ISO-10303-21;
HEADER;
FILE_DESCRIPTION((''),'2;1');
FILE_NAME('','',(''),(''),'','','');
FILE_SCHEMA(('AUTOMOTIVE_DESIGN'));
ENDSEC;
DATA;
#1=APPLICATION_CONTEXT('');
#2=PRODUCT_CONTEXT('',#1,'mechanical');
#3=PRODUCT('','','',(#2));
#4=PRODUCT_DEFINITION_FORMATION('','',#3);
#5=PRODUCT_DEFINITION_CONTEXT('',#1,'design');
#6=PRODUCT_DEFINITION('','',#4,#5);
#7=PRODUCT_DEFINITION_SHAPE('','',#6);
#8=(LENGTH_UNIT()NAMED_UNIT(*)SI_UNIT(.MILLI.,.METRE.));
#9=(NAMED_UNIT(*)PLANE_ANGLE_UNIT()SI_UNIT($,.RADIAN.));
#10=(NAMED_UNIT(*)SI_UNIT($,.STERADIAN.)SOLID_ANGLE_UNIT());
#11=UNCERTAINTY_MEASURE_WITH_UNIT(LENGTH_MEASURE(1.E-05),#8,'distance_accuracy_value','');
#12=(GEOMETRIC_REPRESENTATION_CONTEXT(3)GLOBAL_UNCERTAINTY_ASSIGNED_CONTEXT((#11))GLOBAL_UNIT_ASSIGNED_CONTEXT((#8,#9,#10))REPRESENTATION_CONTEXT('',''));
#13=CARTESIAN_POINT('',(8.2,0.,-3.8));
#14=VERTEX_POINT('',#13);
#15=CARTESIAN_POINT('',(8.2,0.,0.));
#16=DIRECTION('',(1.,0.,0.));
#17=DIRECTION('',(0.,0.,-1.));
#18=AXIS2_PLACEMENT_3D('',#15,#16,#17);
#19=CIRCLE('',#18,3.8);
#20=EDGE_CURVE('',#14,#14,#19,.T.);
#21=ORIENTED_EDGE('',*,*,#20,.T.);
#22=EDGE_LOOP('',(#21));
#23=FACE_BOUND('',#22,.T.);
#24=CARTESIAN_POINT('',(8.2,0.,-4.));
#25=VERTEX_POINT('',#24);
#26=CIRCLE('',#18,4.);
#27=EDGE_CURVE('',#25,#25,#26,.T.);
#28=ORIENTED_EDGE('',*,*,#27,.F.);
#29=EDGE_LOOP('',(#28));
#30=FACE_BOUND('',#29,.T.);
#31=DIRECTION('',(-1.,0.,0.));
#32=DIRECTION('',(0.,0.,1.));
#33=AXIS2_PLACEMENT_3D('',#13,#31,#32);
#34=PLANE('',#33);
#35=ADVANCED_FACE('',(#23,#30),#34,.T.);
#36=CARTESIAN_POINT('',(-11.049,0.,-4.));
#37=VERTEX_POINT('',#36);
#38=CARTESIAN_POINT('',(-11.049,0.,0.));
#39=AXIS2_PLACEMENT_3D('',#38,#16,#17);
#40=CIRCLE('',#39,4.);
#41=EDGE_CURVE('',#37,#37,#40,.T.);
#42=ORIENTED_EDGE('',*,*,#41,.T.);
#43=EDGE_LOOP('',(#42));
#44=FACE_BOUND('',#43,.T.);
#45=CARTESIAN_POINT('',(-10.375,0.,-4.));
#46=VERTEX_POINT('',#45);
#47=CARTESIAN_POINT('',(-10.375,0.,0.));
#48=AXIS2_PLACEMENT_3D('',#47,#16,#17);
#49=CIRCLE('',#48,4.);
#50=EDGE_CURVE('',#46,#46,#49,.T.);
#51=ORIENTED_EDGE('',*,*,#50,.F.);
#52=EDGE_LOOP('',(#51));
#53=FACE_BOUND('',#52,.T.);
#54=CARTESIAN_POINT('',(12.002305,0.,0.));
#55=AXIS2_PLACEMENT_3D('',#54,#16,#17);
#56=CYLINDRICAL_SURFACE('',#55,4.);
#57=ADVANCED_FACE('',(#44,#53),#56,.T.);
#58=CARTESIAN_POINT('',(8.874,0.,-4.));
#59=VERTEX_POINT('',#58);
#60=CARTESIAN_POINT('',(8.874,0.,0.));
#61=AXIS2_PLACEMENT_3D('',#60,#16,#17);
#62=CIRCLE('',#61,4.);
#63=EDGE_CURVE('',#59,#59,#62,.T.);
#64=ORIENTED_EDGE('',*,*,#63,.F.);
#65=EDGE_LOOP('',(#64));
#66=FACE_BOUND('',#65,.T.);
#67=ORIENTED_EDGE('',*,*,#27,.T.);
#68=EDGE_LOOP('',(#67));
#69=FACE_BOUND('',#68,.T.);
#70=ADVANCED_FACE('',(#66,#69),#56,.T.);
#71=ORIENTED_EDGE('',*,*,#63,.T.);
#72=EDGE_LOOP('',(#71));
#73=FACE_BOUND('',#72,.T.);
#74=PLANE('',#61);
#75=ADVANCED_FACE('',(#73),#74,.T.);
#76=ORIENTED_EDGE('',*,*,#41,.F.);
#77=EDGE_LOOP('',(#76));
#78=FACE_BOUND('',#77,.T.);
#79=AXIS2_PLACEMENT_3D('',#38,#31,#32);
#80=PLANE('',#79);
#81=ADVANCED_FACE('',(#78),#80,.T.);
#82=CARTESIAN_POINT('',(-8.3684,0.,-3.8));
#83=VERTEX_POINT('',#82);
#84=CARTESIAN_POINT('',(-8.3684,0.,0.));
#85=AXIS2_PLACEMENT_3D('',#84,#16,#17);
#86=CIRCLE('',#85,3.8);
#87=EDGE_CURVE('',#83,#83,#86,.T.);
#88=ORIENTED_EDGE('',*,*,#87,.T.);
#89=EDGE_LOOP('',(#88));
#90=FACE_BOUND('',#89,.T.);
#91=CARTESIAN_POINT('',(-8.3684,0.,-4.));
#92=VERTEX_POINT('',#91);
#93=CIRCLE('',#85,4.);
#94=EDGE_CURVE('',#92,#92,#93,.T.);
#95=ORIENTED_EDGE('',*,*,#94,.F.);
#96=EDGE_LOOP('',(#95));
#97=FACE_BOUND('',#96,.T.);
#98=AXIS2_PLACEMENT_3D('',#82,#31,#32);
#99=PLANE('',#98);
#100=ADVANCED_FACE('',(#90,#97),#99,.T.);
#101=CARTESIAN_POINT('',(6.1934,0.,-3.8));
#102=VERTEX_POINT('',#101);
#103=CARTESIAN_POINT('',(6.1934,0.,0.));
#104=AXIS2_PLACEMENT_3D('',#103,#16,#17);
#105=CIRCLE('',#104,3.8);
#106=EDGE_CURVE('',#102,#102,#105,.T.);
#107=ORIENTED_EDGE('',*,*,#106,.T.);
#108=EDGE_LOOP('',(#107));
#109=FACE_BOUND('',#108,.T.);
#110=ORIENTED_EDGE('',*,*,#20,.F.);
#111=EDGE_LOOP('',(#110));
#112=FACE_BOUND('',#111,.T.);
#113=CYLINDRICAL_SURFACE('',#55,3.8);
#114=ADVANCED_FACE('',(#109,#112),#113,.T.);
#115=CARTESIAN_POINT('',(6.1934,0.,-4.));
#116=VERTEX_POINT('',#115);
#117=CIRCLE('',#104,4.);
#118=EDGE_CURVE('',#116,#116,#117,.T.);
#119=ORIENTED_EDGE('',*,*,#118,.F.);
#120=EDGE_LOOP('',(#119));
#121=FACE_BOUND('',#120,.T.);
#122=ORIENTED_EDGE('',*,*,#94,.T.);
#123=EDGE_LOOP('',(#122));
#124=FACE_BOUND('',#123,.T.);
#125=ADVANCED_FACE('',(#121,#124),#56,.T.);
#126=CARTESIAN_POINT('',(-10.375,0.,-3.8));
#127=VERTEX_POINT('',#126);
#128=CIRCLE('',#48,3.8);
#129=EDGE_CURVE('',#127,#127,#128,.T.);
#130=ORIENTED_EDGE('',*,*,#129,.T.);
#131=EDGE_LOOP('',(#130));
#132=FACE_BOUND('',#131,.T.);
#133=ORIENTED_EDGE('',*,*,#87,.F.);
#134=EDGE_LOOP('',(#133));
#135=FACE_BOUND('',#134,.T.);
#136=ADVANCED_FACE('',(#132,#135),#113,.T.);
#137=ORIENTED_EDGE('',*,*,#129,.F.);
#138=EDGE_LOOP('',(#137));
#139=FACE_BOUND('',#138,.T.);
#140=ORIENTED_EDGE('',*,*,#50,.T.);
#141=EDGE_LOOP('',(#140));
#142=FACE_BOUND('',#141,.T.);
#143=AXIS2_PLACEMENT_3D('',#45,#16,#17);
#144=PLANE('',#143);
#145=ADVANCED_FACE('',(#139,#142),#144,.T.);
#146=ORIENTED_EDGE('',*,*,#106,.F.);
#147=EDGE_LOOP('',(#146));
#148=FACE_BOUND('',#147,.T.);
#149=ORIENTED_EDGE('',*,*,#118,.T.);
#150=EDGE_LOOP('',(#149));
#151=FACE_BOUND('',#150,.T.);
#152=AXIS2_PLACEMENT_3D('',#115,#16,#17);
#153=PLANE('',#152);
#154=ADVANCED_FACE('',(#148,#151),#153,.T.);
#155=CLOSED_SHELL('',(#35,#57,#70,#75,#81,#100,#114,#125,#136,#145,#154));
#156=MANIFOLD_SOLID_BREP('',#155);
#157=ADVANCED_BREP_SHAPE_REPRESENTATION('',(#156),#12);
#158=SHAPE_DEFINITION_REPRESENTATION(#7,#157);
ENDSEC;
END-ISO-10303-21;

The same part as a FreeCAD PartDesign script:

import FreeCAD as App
import Part
import Sketcher

V = App.Vector

doc = App.newDocument("Part")
body = doc.addObject("PartDesign::Body", "Body")

# Sketch on XZ plane
sketch1 = body.newObject("Sketcher::SketchObject", "Sketch")
sketch1.AttachmentSupport = (doc.getObject("XZ_Plane"), [""])
sketch1.MapMode = "FlatFace"
sketch1.addGeometry([
    Part.LineSegment(V(8.87, 0, 0), V(8.87, -4, 0)),  # 0
    Part.LineSegment(V(8.87, -4, 0), V(8.2, -4, 0)),  # 1
    Part.LineSegment(V(8.2, -4, 0), V(8.2, -3.8, 0)),  # 2
    Part.LineSegment(V(8.2, -3.8, 0), V(6.19, -3.8, 0)),  # 3
    Part.LineSegment(V(6.19, -3.8, 0), V(6.19, -4, 0)),  # 4
    Part.LineSegment(V(6.19, -4, 0), V(-8.37, -4, 0)),  # 5
    Part.LineSegment(V(-8.37, -4, 0), V(-8.37, -3.8, 0)),  # 6
    Part.LineSegment(V(-8.37, -3.8, 0), V(-10.38, -3.8, 0)),  # 7
    Part.LineSegment(V(-10.38, -3.8, 0), V(-10.38, -4, 0)),  # 8
    Part.LineSegment(V(-10.38, -4, 0), V(-11.05, -4, 0)),  # 9
    Part.LineSegment(V(-11.05, -4, 0), V(-11.05, 0, 0)),  # 10
    Part.LineSegment(V(-11.05, 0, 0), V(8.87, 0, 0)),  # 11
], False)
sketch1.addConstraint([
    Sketcher.Constraint("Coincident", 0, 2, 1, 1),
    Sketcher.Constraint("Coincident", 1, 2, 2, 1),
    Sketcher.Constraint("Coincident", 2, 2, 3, 1),
    Sketcher.Constraint("Coincident", 3, 2, 4, 1),
    Sketcher.Constraint("Coincident", 4, 2, 5, 1),
    Sketcher.Constraint("Coincident", 5, 2, 6, 1),
    Sketcher.Constraint("Coincident", 6, 2, 7, 1),
    Sketcher.Constraint("Coincident", 7, 2, 8, 1),
    Sketcher.Constraint("Coincident", 8, 2, 9, 1),
    Sketcher.Constraint("Coincident", 9, 2, 10, 1),
    Sketcher.Constraint("Coincident", 10, 2, 11, 1),
    Sketcher.Constraint("Coincident", 11, 2, 0, 1),
    Sketcher.Constraint("Vertical", 0),
    Sketcher.Constraint("Horizontal", 1),
    Sketcher.Constraint("Vertical", 2),
    Sketcher.Constraint("Horizontal", 3),
    Sketcher.Constraint("Vertical", 4),
    Sketcher.Constraint("Horizontal", 5),
    Sketcher.Constraint("Vertical", 6),
    Sketcher.Constraint("Horizontal", 7),
    Sketcher.Constraint("Vertical", 8),
    Sketcher.Constraint("Horizontal", 9),
    Sketcher.Constraint("Vertical", 10),
    Sketcher.Constraint("Horizontal", 11),
    Sketcher.Constraint("PointOnObject", 10, 2, -1),
    Sketcher.Constraint("Horizontal", 1, 2, 4, 2),
    Sketcher.Constraint("Horizontal", 3, 2, 6, 2),
    Sketcher.Constraint("Horizontal", 5, 2, 8, 2),
    Sketcher.Constraint("Equal", 3, 7),
    Sketcher.Constraint("Equal", 1, 9),
    Sketcher.Constraint("DistanceY", 0, 2, 0, 1, 4.0),
    Sketcher.Constraint("DistanceY", 2, 1, 2, 2, 0.2),
    Sketcher.Constraint("DistanceX", -1, 1, 1, 2, 8.2),
    Sketcher.Constraint("DistanceX", 1, 2, 1, 1, 0.674),
    Sketcher.Constraint("DistanceX", 11, 1, 11, 2, 19.923),
    Sketcher.Constraint("DistanceX", 3, 2, 3, 1, 2.0066),
])
revolution = body.newObject("PartDesign::Revolution", "Revolution")
revolution.Profile = sketch1
revolution.ReferenceAxis = (sketch1, ["H_Axis"])
revolution.Angle = 360

doc.recompute()
